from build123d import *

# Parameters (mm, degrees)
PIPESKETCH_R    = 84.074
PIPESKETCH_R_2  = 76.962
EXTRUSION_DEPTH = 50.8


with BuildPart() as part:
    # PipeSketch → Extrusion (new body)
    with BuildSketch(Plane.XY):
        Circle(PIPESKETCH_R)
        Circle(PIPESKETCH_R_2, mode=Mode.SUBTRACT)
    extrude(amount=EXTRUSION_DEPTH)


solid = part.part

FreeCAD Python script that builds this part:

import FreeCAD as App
import Part
import Sketcher
Q = App.Units.Quantity

doc = App.newDocument("Part")
body = doc.addObject("PartDesign::Body", "Body")

# Sketch on XY plane
sketch1 = body.newObject("Sketcher::SketchObject", "Sketch")
sketch1.AttachmentSupport = (doc.getObject("XY_Plane"), [""])
sketch1.MapMode = "FlatFace"
sketch1.addGeometry(Part.Circle(App.Vector(0, 0, 0), App.Vector(0, 0, 1), 84), False)
sketch1.addGeometry(Part.Circle(App.Vector(0, 0, 0), App.Vector(0, 0, 1), 77), False)
sketch1.addConstraint(Sketcher.Constraint("Coincident", 0, 3, -1, 1))
sketch1.addConstraint(Sketcher.Constraint("Coincident", 1, 3, -1, 1))
sketch1.addConstraint(Sketcher.Constraint("Diameter", 0, Q("6.62 in")))
sketch1.addConstraint(Sketcher.Constraint("Diameter", 1, Q("6.06 in")))
pad1 = body.newObject("PartDesign::Pad", "Pad")
pad1.Profile = sketch1
pad1.Length = Q("2 in")

doc.recompute()
